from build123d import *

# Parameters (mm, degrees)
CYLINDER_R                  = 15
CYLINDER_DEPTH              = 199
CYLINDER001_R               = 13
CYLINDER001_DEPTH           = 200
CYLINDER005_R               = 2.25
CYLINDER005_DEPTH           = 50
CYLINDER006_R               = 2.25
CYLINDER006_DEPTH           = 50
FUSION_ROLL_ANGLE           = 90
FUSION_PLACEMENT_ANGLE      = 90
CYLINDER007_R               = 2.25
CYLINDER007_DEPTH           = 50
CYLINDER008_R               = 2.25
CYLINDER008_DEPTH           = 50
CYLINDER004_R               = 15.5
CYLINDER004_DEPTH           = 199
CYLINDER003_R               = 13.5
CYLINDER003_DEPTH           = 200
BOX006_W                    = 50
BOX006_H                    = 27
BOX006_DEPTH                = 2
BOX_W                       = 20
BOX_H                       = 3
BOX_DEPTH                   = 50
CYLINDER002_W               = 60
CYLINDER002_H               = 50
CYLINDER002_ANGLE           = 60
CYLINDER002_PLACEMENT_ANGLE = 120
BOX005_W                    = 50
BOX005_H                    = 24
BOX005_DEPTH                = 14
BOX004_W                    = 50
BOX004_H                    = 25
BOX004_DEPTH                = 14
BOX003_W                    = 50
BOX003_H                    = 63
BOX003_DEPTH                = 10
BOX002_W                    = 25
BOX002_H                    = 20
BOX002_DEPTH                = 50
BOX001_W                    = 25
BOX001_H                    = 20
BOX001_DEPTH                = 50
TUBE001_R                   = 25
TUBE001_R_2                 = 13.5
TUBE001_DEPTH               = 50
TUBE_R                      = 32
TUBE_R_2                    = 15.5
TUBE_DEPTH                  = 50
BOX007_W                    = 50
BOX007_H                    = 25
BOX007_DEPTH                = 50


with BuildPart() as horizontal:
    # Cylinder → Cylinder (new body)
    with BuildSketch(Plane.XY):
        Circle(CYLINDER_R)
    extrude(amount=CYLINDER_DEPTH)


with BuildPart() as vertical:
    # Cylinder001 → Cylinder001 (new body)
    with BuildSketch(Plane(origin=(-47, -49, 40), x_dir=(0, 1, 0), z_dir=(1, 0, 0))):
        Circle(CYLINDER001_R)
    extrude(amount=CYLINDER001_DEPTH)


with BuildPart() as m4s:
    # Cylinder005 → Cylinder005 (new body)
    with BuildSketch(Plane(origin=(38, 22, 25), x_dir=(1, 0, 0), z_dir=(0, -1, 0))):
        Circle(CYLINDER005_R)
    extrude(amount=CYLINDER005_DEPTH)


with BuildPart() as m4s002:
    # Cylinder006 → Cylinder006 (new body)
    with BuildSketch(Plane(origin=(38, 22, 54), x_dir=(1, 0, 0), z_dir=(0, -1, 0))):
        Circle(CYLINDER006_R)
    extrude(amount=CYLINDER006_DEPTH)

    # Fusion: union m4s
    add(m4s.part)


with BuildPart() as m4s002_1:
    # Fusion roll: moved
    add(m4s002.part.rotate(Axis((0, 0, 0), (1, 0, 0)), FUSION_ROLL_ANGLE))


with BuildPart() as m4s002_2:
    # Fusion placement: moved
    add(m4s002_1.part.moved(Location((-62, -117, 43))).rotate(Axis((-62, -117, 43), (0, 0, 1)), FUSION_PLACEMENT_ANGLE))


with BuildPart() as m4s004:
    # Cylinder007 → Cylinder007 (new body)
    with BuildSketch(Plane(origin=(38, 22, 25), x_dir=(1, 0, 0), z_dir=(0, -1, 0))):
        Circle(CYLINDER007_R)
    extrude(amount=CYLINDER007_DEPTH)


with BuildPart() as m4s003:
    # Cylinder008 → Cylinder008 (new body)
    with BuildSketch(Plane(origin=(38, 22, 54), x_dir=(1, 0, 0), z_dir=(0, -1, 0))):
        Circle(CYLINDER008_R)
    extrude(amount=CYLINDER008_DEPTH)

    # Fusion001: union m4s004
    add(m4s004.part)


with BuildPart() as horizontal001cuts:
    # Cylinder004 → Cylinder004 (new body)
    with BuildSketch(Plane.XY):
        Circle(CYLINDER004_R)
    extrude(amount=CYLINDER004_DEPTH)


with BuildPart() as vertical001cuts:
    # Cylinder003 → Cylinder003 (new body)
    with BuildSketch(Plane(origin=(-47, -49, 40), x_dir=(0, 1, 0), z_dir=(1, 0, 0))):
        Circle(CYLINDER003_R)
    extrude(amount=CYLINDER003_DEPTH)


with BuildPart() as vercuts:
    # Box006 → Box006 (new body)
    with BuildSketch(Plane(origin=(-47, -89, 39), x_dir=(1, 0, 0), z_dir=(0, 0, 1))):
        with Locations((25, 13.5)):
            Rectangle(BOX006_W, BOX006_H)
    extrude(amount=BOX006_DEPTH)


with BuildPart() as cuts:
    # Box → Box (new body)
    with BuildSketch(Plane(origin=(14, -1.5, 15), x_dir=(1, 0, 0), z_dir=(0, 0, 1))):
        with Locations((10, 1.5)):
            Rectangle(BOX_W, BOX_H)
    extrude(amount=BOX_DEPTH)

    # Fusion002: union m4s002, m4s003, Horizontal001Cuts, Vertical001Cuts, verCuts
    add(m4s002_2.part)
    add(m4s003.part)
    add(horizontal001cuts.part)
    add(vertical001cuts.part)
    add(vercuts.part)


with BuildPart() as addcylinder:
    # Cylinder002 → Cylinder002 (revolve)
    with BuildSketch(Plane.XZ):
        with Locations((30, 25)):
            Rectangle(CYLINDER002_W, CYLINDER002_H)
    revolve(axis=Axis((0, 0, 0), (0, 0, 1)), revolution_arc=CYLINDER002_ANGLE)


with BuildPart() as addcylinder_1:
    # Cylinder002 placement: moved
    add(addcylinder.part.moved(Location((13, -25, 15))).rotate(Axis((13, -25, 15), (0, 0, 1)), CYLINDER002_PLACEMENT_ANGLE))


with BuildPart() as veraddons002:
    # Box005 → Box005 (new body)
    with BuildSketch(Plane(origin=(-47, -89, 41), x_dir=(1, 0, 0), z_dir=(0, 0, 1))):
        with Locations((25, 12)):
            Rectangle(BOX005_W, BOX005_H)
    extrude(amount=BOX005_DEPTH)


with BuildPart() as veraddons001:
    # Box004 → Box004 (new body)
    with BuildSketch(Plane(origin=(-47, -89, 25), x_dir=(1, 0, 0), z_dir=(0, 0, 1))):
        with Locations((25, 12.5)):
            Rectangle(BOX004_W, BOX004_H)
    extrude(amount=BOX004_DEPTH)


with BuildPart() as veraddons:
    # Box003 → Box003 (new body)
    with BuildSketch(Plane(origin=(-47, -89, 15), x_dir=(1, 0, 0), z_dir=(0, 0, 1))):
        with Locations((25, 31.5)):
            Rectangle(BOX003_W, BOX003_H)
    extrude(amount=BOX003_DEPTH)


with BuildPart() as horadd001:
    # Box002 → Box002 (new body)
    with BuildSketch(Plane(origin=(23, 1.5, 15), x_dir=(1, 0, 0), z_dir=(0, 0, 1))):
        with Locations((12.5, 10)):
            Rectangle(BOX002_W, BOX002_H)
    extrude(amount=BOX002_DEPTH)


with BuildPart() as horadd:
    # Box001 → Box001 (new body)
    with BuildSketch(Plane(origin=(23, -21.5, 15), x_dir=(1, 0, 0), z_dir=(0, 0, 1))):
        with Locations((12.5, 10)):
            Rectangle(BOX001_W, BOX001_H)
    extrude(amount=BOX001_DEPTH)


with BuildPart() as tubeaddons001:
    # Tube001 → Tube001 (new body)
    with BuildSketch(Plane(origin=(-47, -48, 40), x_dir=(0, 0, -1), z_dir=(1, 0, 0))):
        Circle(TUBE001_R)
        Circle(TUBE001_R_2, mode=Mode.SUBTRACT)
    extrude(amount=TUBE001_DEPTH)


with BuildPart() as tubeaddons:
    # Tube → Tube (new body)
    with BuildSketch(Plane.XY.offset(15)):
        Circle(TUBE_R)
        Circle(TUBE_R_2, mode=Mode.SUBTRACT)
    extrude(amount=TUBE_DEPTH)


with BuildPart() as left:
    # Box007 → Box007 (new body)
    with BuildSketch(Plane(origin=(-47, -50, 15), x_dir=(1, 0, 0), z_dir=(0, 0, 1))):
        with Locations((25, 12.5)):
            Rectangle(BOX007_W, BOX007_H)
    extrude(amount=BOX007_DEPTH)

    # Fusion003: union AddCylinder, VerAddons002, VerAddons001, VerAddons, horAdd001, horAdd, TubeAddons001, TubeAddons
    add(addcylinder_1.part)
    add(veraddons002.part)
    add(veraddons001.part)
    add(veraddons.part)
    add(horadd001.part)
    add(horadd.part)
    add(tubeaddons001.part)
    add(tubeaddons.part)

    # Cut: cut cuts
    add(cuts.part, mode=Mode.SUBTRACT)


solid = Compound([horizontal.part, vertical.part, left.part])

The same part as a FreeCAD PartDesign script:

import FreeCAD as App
import Part
import Sketcher


def add_polygon(sketch, points):
    """Adds a closed chain of lines whose ends are joined by coincident constraints."""
    first, n = sketch.GeometryCount, len(points)
    for a, b in zip(points, points[1:] + points[:1]):
        sketch.addGeometry(Part.LineSegment(App.Vector(*a, 0), App.Vector(*b, 0)), False)
    for i in range(n):
        sketch.addConstraint(Sketcher.Constraint("Coincident", first + i, 2, first + (i + 1) % n, 1))

doc = App.newDocument("Part")
body = doc.addObject("PartDesign::Body", "Body")

sketch1 = body.newObject("Sketcher::SketchObject", "Sketch")
sketch1.AttachmentSupport = (doc.getObject("XY_Plane"), [""])
sketch1.MapMode = "FlatFace"
sketch1.addGeometry(Part.Circle(App.Vector(0, 0, 0), App.Vector(0, 0, 1), 15), False)
sketch1.addConstraint([
    Sketcher.Constraint("Coincident", 0, 3, -1, 1),
    Sketcher.Constraint("Diameter", 0, 30.0),
])
pad1 = body.newObject("PartDesign::Pad", "Pad")
pad1.Profile = sketch1
pad1.Length = 199
body2 = doc.addObject("PartDesign::Body", "Body001")

sketch2 = body2.newObject("Sketcher::SketchObject", "Sketch001")
sketch2.AttachmentSupport = (doc.getObject("YZ_Plane001"), [""])
sketch2.MapMode = "FlatFace"
sketch2.AttachmentOffset = App.Placement(App.Vector(0, 0, -47), App.Rotation())
sketch2.addGeometry(Part.Circle(App.Vector(-49, 40, 0), App.Vector(0, 0, 1), 13), False)
sketch2.addConstraint([
    Sketcher.Constraint("Diameter", 0, 26.0),
    Sketcher.Constraint("DistanceX", 0, 3, -1, 1, 49.0),
    Sketcher.Constraint("DistanceY", -1, 1, 0, 3, 40.0),
])
pad2 = body2.newObject("PartDesign::Pad", "Pad001")
pad2.Profile = sketch2
pad2.Length = 200
body3 = doc.addObject("PartDesign::Body", "Body002")

sketch3 = body3.newObject("Sketcher::SketchObject", "Sketch002")
sketch3.AttachmentSupport = (doc.getObject("XZ_Plane002"), [""])
sketch3.MapMode = "FlatFace"
sketch3.AttachmentOffset = App.Placement(App.Vector(0, 0, -22), App.Rotation())
sketch3.addGeometry(Part.Circle(App.Vector(38, 25, 0), App.Vector(0, 0, 1), 2.2), False)
sketch3.addConstraint([
    Sketcher.Constraint("Diameter", 0, 4.5),
    Sketcher.Constraint("DistanceX", -1, 1, 0, 3, 38.0),
    Sketcher.Constraint("DistanceY", -1, 1, 0, 3, 25.0),
])
pad3 = body3.newObject("PartDesign::Pad", "Pad002")
pad3.Profile = sketch3
pad3.Length = 50
body4 = doc.addObject("PartDesign::Body", "Body003")
body4.AllowCompound = True

sketch4 = body4.newObject("Sketcher::SketchObject", "Sketch003")
sketch4.AttachmentSupport = (doc.getObject("XZ_Plane003"), [""])
sketch4.MapMode = "FlatFace"
sketch4.AttachmentOffset = App.Placement(App.Vector(0, 0, -22), App.Rotation())
sketch4.addGeometry(Part.Circle(App.Vector(38, 54, 0), App.Vector(0, 0, 1), 2.2), False)
sketch4.addConstraint([
    Sketcher.Constraint("Diameter", 0, 4.5),
    Sketcher.Constraint("DistanceX", -1, 1, 0, 3, 38.0),
    Sketcher.Constraint("DistanceY", -1, 1, 0, 3, 54.0),
])
pad4 = body4.newObject("PartDesign::Pad", "Pad003")
pad4.Profile = sketch4
pad4.Length = 50
doc.recompute()

boolean = body4.newObject("PartDesign::Boolean", "Boolean")
boolean.Type = "Fuse"
boolean.addObjects([body3])
body5 = doc.addObject("PartDesign::Body", "Body004")
body5.AllowCompound = True
doc.recompute()

body4.Placement = App.Placement(App.Vector(0, 0, 0), App.Rotation(App.Vector(1, 0, 0), 90))
boolean2 = body5.newObject("PartDesign::Boolean", "Boolean001")
boolean2.Type = "Fuse"
boolean2.addObjects([body4])
body6 = doc.addObject("PartDesign::Body", "Body005")
body6.AllowCompound = True
doc.recompute()

body5.Placement = App.Placement(App.Vector(-62, -117, 43), App.Rotation(App.Vector(0, 0, 1), 90))
boolean3 = body6.newObject("PartDesign::Boolean", "Boolean002")
boolean3.Type = "Fuse"
boolean3.addObjects([body5])
body7 = doc.addObject("PartDesign::Body", "Body006")

sketch5 = body7.newObject("Sketcher::SketchObject", "Sketch004")
sketch5.AttachmentSupport = (doc.getObject("XZ_Plane006"), [""])
sketch5.MapMode = "FlatFace"
sketch5.AttachmentOffset = App.Placement(App.Vector(0, 0, -22), App.Rotation())
sketch5.addGeometry(Part.Circle(App.Vector(38, 25, 0), App.Vector(0, 0, 1), 2.2), False)
sketch5.addConstraint([
    Sketcher.Constraint("Diameter", 0, 4.5),
    Sketcher.Constraint("DistanceX", -1, 1, 0, 3, 38.0),
    Sketcher.Constraint("DistanceY", -1, 1, 0, 3, 25.0),
])
pad5 = body7.newObject("PartDesign::Pad", "Pad004")
pad5.Profile = sketch5
pad5.Length = 50
body8 = doc.addObject("PartDesign::Body", "Body007")
body8.AllowCompound = True

sketch6 = body8.newObject("Sketcher::SketchObject", "Sketch005")
sketch6.AttachmentSupport = (doc.getObject("XZ_Plane007"), [""])
sketch6.MapMode = "FlatFace"
sketch6.AttachmentOffset = App.Placement(App.Vector(0, 0, -22), App.Rotation())
sketch6.addGeometry(Part.Circle(App.Vector(38, 54, 0), App.Vector(0, 0, 1), 2.2), False)
sketch6.addConstraint([
    Sketcher.Constraint("Diameter", 0, 4.5),
    Sketcher.Constraint("DistanceX", -1, 1, 0, 3, 38.0),
    Sketcher.Constraint("DistanceY", -1, 1, 0, 3, 54.0),
])
pad6 = body8.newObject("PartDesign::Pad", "Pad005")
pad6.Profile = sketch6
pad6.Length = 50
doc.recompute()

boolean4 = body8.newObject("PartDesign::Boolean", "Boolean003")
boolean4.Type = "Fuse"
boolean4.addObjects([body7])
body9 = doc.addObject("PartDesign::Body", "Body008")

sketch7 = body9.newObject("Sketcher::SketchObject", "Sketch006")
sketch7.AttachmentSupport = (doc.getObject("XY_Plane008"), [""])
sketch7.MapMode = "FlatFace"
sketch7.addGeometry(Part.Circle(App.Vector(0, 0, 0), App.Vector(0, 0, 1), 16), False)
sketch7.addConstraint([
    Sketcher.Constraint("Coincident", 0, 3, -1, 1),
    Sketcher.Constraint("Diameter", 0, 31.0),
])
pad7 = body9.newObject("PartDesign::Pad", "Pad006")
pad7.Profile = sketch7
pad7.Length = 199
body10 = doc.addObject("PartDesign::Body", "Body009")

sketch8 = body10.newObject("Sketcher::SketchObject", "Sketch007")
sketch8.AttachmentSupport = (doc.getObject("YZ_Plane009"), [""])
sketch8.MapMode = "FlatFace"
sketch8.AttachmentOffset = App.Placement(App.Vector(0, 0, -47), App.Rotation())
sketch8.addGeometry(Part.Circle(App.Vector(-49, 40, 0), App.Vector(0, 0, 1), 14), False)
sketch8.addConstraint([
    Sketcher.Constraint("Diameter", 0, 27.0),
    Sketcher.Constraint("DistanceX", 0, 3, -1, 1, 49.0),
    Sketcher.Constraint("DistanceY", -1, 1, 0, 3, 40.0),
])
pad8 = body10.newObject("PartDesign::Pad", "Pad007")
pad8.Profile = sketch8
pad8.Length = 200
body11 = doc.addObject("PartDesign::Body", "Body010")

sketch9 = body11.newObject("Sketcher::SketchObject", "Sketch008")
sketch9.AttachmentSupport = (doc.getObject("XY_Plane010"), [""])
sketch9.MapMode = "FlatFace"
sketch9.AttachmentOffset = App.Placement(App.Vector(0, 0, 39), App.Rotation())
add_polygon(sketch9, [(-47, -62), (-47, -89), (3, -89), (3, -62)])
sketch9.addConstraint([
    Sketcher.Constraint("Vertical", 0),
    Sketcher.Constraint("Horizontal", 1),
    Sketcher.Constraint("Vertical", 2),
    Sketcher.Constraint("Horizontal", 3),
    Sketcher.Constraint("DistanceX", 1, 1, 1, 2, 50.0),
    Sketcher.Constraint("DistanceY", 0, 2, 0, 1, 27.0),
    Sketcher.Constraint("DistanceX", 0, 2, -1, 1, 47.0),
    Sketcher.Constraint("DistanceY", 0, 2, -1, 1, 89.0),
])
pad9 = body11.newObject("PartDesign::Pad", "Pad008")
pad9.Profile = sketch9
pad9.Length = 2
body12 = doc.addObject("PartDesign::Body", "Body011")
body12.AllowCompound = True

sketch10 = body12.newObject("Sketcher::SketchObject", "Sketch009")
sketch10.AttachmentSupport = (doc.getObject("XY_Plane011"), [""])
sketch10.MapMode = "FlatFace"
sketch10.AttachmentOffset = App.Placement(App.Vector(0, 0, 15), App.Rotation())
add_polygon(sketch10, [(14, 1.5), (14, -1.5), (34, -1.5), (34, 1.5)])
sketch10.addConstraint([
    Sketcher.Constraint("Vertical", 0),
    Sketcher.Constraint("Horizontal", 1),
    Sketcher.Constraint("Vertical", 2),
    Sketcher.Constraint("Horizontal", 3),
    Sketcher.Constraint("DistanceX", 1, 1, 1, 2, 20.0),
    Sketcher.Constraint("DistanceY", 0, 2, 0, 1, 3.0),
    Sketcher.Constraint("DistanceX", -1, 1, 0, 2, 14.0),
    Sketcher.Constraint("DistanceY", 0, 2, -1, 1, 1.5),
])
pad10 = body12.newObject("PartDesign::Pad", "Pad009")
pad10.Profile = sketch10
pad10.Length = 50
doc.recompute()

boolean5 = body12.newObject("PartDesign::Boolean", "Boolean004")
boolean5.Type = "Fuse"
boolean5.addObjects([body6])
doc.recompute()

boolean6 = body12.newObject("PartDesign::Boolean", "Boolean005")
boolean6.Type = "Fuse"
boolean6.addObjects([body8])
doc.recompute()

boolean7 = body12.newObject("PartDesign::Boolean", "Boolean006")
boolean7.Type = "Fuse"
boolean7.addObjects([body9])
doc.recompute()

boolean8 = body12.newObject("PartDesign::Boolean", "Boolean007")
boolean8.Type = "Fuse"
boolean8.addObjects([body10])
doc.recompute()

boolean9 = body12.newObject("PartDesign::Boolean", "Boolean008")
boolean9.Type = "Fuse"
boolean9.addObjects([body11])
body13 = doc.addObject("PartDesign::Body", "Body012")

sketch11 = body13.newObject("Sketcher::SketchObject", "Sketch010")
sketch11.AttachmentSupport = (doc.getObject("XZ_Plane012"), [""])
sketch11.MapMode = "FlatFace"
add_polygon(sketch11, [(0, 50), (0, 0), (60, 0), (60, 50)])
sketch11.addConstraint([
    Sketcher.Constraint("Vertical", 0),
    Sketcher.Constraint("Horizontal", 1),
    Sketcher.Constraint("Vertical", 2),
    Sketcher.Constraint("Horizontal", 3),
    Sketcher.Constraint("Coincident", 0, 2, -1, 1),
    Sketcher.Constraint("DistanceX", 1, 1, 1, 2, 60.0),
    Sketcher.Constraint("DistanceY", 0, 2, 0, 1, 50.0),
])
revolution = body13.newObject("PartDesign::Revolution", "Revolution")
revolution.Profile = sketch11
revolution.ReferenceAxis = (sketch11, ["V_Axis"])
revolution.Angle = 60
body14 = doc.addObject("PartDesign::Body", "Body013")
doc.recompute()

body13.Placement = App.Placement(App.Vector(13, -25, 15), App.Rotation(App.Vector(0, 0, 1), 120))
boolean10 = body14.newObject("PartDesign::Boolean", "Boolean009")
boolean10.Type = "Fuse"
boolean10.addObjects([body13])
body15 = doc.addObject("PartDesign::Body", "Body014")

sketch12 = body15.newObject("Sketcher::SketchObject", "Sketch011")
sketch12.AttachmentSupport = (doc.getObject("XY_Plane014"), [""])
sketch12.MapMode = "FlatFace"
sketch12.AttachmentOffset = App.Placement(App.Vector(0, 0, 41), App.Rotation())
add_polygon(sketch12, [(-47, -65), (-47, -89), (3, -89), (3, -65)])
sketch12.addConstraint([
    Sketcher.Constraint("Vertical", 0),
    Sketcher.Constraint("Horizontal", 1),
    Sketcher.Constraint("Vertical", 2),
    Sketcher.Constraint("Horizontal", 3),
    Sketcher.Constraint("DistanceX", 1, 1, 1, 2, 50.0),
    Sketcher.Constraint("DistanceY", 0, 2, 0, 1, 24.0),
    Sketcher.Constraint("DistanceX", 0, 2, -1, 1, 47.0),
    Sketcher.Constraint("DistanceY", 0, 2, -1, 1, 89.0),
])
pad11 = body15.newObject("PartDesign::Pad", "Pad010")
pad11.Profile = sketch12
pad11.Length = 14
body16 = doc.addObject("PartDesign::Body", "Body015")

sketch13 = body16.newObject("Sketcher::SketchObject", "Sketch012")
sketch13.AttachmentSupport = (doc.getObject("XY_Plane015"), [""])
sketch13.MapMode = "FlatFace"
sketch13.AttachmentOffset = App.Placement(App.Vector(0, 0, 25), App.Rotation())
add_polygon(sketch13, [(-47, -64), (-47, -89), (3, -89), (3, -64)])
sketch13.addConstraint([
    Sketcher.Constraint("Vertical", 0),
    Sketcher.Constraint("Horizontal", 1),
    Sketcher.Constraint("Vertical", 2),
    Sketcher.Constraint("Horizontal", 3),
    Sketcher.Constraint("DistanceX", 1, 1, 1, 2, 50.0),
    Sketcher.Constraint("DistanceY", 0, 2, 0, 1, 25.0),
    Sketcher.Constraint("DistanceX", 0, 2, -1, 1, 47.0),
    Sketcher.Constraint("DistanceY", 0, 2, -1, 1, 89.0),
])
pad12 = body16.newObject("PartDesign::Pad", "Pad011")
pad12.Profile = sketch13
pad12.Length = 14
body17 = doc.addObject("PartDesign::Body", "Body016")

sketch14 = body17.newObject("Sketcher::SketchObject", "Sketch013")
sketch14.AttachmentSupport = (doc.getObject("XY_Plane016"), [""])
sketch14.MapMode = "FlatFace"
sketch14.AttachmentOffset = App.Placement(App.Vector(0, 0, 15), App.Rotation())
add_polygon(sketch14, [(-47, -26), (-47, -89), (3, -89), (3, -26)])
sketch14.addConstraint([
    Sketcher.Constraint("Vertical", 0),
    Sketcher.Constraint("Horizontal", 1),
    Sketcher.Constraint("Vertical", 2),
    Sketcher.Constraint("Horizontal", 3),
    Sketcher.Constraint("DistanceX", 1, 1, 1, 2, 50.0),
    Sketcher.Constraint("DistanceY", 0, 2, 0, 1, 63.0),
    Sketcher.Constraint("DistanceX", 0, 2, -1, 1, 47.0),
    Sketcher.Constraint("DistanceY", 0, 2, -1, 1, 89.0),
])
pad13 = body17.newObject("PartDesign::Pad", "Pad012")
pad13.Profile = sketch14
pad13.Length = 10
body18 = doc.addObject("PartDesign::Body", "Body017")

sketch15 = body18.newObject("Sketcher::SketchObject", "Sketch014")
sketch15.AttachmentSupport = (doc.getObject("XY_Plane017"), [""])
sketch15.MapMode = "FlatFace"
sketch15.AttachmentOffset = App.Placement(App.Vector(0, 0, 15), App.Rotation())
add_polygon(sketch15, [(23, 22), (23, 2), (48, 2), (48, 22)])
sketch15.addConstraint([
    Sketcher.Constraint("Vertical", 0),
    Sketcher.Constraint("Horizontal", 1),
    Sketcher.Constraint("Vertical", 2),
    Sketcher.Constraint("Horizontal", 3),
    Sketcher.Constraint("DistanceX", 1, 1, 1, 2, 25.0),
    Sketcher.Constraint("DistanceY", 0, 2, 0, 1, 20.0),
    Sketcher.Constraint("DistanceX", -1, 1, 0, 2, 23.0),
    Sketcher.Constraint("DistanceY", -1, 1, 0, 2, 1.5),
])
pad14 = body18.newObject("PartDesign::Pad", "Pad013")
pad14.Profile = sketch15
pad14.Length = 50
body19 = doc.addObject("PartDesign::Body", "Body018")

sketch16 = body19.newObject("Sketcher::SketchObject", "Sketch015")
sketch16.AttachmentSupport = (doc.getObject("XY_Plane018"), [""])
sketch16.MapMode = "FlatFace"
sketch16.AttachmentOffset = App.Placement(App.Vector(0, 0, 15), App.Rotation())
add_polygon(sketch16, [(23, -2), (23, -22), (48, -22), (48, -2)])
sketch16.addConstraint([
    Sketcher.Constraint("Vertical", 0),
    Sketcher.Constraint("Horizontal", 1),
    Sketcher.Constraint("Vertical", 2),
    Sketcher.Constraint("Horizontal", 3),
    Sketcher.Constraint("DistanceX", 1, 1, 1, 2, 25.0),
    Sketcher.Constraint("DistanceY", 0, 2, 0, 1, 20.0),
    Sketcher.Constraint("DistanceX", -1, 1, 0, 2, 23.0),
    Sketcher.Constraint("DistanceY", 0, 2, -1, 1, 21.5),
])
pad15 = body19.newObject("PartDesign::Pad", "Pad014")
pad15.Profile = sketch16
pad15.Length = 50
body20 = doc.addObject("PartDesign::Body", "Body019")

sketch17 = body20.newObject("Sketcher::SketchObject", "Sketch016")
sketch17.AttachmentSupport = (doc.getObject("YZ_Plane019"), [""])
sketch17.MapMode = "FlatFace"
sketch17.AttachmentOffset = App.Placement(App.Vector(0, 0, -47), App.Rotation())
sketch17.addGeometry([
    Part.Circle(App.Vector(-48, 40, 0), App.Vector(0, 0, 1), 25),
    Part.Circle(App.Vector(-48, 40, 0), App.Vector(0, 0, 1), 14),
], False)
sketch17.addConstraint([
    Sketcher.Constraint("Coincident", 1, 3, 0, 3),
    Sketcher.Constraint("Diameter", 0, 50.0),
    Sketcher.Constraint("Diameter", 1, 27.0),
    Sketcher.Constraint("DistanceX", 0, 3, -1, 1, 48.0),
    Sketcher.Constraint("DistanceY", -1, 1, 0, 3, 40.0),
])
pad16 = body20.newObject("PartDesign::Pad", "Pad015")
pad16.Profile = sketch17
pad16.Length = 50
body21 = doc.addObject("PartDesign::Body", "Body020")

sketch18 = body21.newObject("Sketcher::SketchObject", "Sketch017")
sketch18.AttachmentSupport = (doc.getObject("XY_Plane020"), [""])
sketch18.MapMode = "FlatFace"
sketch18.AttachmentOffset = App.Placement(App.Vector(0, 0, 15), App.Rotation())
sketch18.addGeometry([
    Part.Circle(App.Vector(0, 0, 0), App.Vector(0, 0, 1), 32),
    Part.Circle(App.Vector(0, 0, 0), App.Vector(0, 0, 1), 16),
], False)
sketch18.addConstraint([
    Sketcher.Constraint("Coincident", 0, 3, -1, 1),
    Sketcher.Constraint("Coincident", 1, 3, -1, 1),
    Sketcher.Constraint("Diameter", 0, 64.0),
    Sketcher.Constraint("Diameter", 1, 31.0),
])
pad17 = body21.newObject("PartDesign::Pad", "Pad016")
pad17.Profile = sketch18
pad17.Length = 50
body22 = doc.addObject("PartDesign::Body", "Body021")
body22.AllowCompound = True

sketch19 = body22.newObject("Sketcher::SketchObject", "Sketch018")
sketch19.AttachmentSupport = (doc.getObject("XY_Plane021"), [""])
sketch19.MapMode = "FlatFace"
sketch19.AttachmentOffset = App.Placement(App.Vector(0, 0, 15), App.Rotation())
add_polygon(sketch19, [(-47, -25), (-47, -50), (3, -50), (3, -25)])
sketch19.addConstraint([
    Sketcher.Constraint("Vertical", 0),
    Sketcher.Constraint("Horizontal", 1),
    Sketcher.Constraint("Vertical", 2),
    Sketcher.Constraint("Horizontal", 3),
    Sketcher.Constraint("DistanceX", 1, 1, 1, 2, 50.0),
    Sketcher.Constraint("DistanceY", 0, 2, 0, 1, 25.0),
    Sketcher.Constraint("DistanceX", 0, 2, -1, 1, 47.0),
    Sketcher.Constraint("DistanceY", 0, 2, -1, 1, 50.0),
])
pad18 = body22.newObject("PartDesign::Pad", "Pad017")
pad18.Profile = sketch19
pad18.Length = 50
doc.recompute()

boolean11 = body22.newObject("PartDesign::Boolean", "Boolean010")
boolean11.Type = "Fuse"
boolean11.addObjects([body14])
doc.recompute()

boolean12 = body22.newObject("PartDesign::Boolean", "Boolean011")
boolean12.Type = "Fuse"
boolean12.addObjects([body15])
doc.recompute()

boolean13 = body22.newObject("PartDesign::Boolean", "Boolean012")
boolean13.Type = "Fuse"
boolean13.addObjects([body16])
doc.recompute()

boolean14 = body22.newObject("PartDesign::Boolean", "Boolean013")
boolean14.Type = "Fuse"
boolean14.addObjects([body17])
doc.recompute()

boolean15 = body22.newObject("PartDesign::Boolean", "Boolean014")
boolean15.Type = "Fuse"
boolean15.addObjects([body18])
doc.recompute()

boolean16 = body22.newObject("PartDesign::Boolean", "Boolean015")
boolean16.Type = "Fuse"
boolean16.addObjects([body19])
doc.recompute()

boolean17 = body22.newObject("PartDesign::Boolean", "Boolean016")
boolean17.Type = "Fuse"
boolean17.addObjects([body20])
doc.recompute()

boolean18 = body22.newObject("PartDesign::Boolean", "Boolean017")
boolean18.Type = "Fuse"
boolean18.addObjects([body21])
doc.recompute()

boolean19 = body22.newObject("PartDesign::Boolean", "Boolean018")
boolean19.Type = "Cut"
boolean19.addObjects([body12])

doc.recompute()
